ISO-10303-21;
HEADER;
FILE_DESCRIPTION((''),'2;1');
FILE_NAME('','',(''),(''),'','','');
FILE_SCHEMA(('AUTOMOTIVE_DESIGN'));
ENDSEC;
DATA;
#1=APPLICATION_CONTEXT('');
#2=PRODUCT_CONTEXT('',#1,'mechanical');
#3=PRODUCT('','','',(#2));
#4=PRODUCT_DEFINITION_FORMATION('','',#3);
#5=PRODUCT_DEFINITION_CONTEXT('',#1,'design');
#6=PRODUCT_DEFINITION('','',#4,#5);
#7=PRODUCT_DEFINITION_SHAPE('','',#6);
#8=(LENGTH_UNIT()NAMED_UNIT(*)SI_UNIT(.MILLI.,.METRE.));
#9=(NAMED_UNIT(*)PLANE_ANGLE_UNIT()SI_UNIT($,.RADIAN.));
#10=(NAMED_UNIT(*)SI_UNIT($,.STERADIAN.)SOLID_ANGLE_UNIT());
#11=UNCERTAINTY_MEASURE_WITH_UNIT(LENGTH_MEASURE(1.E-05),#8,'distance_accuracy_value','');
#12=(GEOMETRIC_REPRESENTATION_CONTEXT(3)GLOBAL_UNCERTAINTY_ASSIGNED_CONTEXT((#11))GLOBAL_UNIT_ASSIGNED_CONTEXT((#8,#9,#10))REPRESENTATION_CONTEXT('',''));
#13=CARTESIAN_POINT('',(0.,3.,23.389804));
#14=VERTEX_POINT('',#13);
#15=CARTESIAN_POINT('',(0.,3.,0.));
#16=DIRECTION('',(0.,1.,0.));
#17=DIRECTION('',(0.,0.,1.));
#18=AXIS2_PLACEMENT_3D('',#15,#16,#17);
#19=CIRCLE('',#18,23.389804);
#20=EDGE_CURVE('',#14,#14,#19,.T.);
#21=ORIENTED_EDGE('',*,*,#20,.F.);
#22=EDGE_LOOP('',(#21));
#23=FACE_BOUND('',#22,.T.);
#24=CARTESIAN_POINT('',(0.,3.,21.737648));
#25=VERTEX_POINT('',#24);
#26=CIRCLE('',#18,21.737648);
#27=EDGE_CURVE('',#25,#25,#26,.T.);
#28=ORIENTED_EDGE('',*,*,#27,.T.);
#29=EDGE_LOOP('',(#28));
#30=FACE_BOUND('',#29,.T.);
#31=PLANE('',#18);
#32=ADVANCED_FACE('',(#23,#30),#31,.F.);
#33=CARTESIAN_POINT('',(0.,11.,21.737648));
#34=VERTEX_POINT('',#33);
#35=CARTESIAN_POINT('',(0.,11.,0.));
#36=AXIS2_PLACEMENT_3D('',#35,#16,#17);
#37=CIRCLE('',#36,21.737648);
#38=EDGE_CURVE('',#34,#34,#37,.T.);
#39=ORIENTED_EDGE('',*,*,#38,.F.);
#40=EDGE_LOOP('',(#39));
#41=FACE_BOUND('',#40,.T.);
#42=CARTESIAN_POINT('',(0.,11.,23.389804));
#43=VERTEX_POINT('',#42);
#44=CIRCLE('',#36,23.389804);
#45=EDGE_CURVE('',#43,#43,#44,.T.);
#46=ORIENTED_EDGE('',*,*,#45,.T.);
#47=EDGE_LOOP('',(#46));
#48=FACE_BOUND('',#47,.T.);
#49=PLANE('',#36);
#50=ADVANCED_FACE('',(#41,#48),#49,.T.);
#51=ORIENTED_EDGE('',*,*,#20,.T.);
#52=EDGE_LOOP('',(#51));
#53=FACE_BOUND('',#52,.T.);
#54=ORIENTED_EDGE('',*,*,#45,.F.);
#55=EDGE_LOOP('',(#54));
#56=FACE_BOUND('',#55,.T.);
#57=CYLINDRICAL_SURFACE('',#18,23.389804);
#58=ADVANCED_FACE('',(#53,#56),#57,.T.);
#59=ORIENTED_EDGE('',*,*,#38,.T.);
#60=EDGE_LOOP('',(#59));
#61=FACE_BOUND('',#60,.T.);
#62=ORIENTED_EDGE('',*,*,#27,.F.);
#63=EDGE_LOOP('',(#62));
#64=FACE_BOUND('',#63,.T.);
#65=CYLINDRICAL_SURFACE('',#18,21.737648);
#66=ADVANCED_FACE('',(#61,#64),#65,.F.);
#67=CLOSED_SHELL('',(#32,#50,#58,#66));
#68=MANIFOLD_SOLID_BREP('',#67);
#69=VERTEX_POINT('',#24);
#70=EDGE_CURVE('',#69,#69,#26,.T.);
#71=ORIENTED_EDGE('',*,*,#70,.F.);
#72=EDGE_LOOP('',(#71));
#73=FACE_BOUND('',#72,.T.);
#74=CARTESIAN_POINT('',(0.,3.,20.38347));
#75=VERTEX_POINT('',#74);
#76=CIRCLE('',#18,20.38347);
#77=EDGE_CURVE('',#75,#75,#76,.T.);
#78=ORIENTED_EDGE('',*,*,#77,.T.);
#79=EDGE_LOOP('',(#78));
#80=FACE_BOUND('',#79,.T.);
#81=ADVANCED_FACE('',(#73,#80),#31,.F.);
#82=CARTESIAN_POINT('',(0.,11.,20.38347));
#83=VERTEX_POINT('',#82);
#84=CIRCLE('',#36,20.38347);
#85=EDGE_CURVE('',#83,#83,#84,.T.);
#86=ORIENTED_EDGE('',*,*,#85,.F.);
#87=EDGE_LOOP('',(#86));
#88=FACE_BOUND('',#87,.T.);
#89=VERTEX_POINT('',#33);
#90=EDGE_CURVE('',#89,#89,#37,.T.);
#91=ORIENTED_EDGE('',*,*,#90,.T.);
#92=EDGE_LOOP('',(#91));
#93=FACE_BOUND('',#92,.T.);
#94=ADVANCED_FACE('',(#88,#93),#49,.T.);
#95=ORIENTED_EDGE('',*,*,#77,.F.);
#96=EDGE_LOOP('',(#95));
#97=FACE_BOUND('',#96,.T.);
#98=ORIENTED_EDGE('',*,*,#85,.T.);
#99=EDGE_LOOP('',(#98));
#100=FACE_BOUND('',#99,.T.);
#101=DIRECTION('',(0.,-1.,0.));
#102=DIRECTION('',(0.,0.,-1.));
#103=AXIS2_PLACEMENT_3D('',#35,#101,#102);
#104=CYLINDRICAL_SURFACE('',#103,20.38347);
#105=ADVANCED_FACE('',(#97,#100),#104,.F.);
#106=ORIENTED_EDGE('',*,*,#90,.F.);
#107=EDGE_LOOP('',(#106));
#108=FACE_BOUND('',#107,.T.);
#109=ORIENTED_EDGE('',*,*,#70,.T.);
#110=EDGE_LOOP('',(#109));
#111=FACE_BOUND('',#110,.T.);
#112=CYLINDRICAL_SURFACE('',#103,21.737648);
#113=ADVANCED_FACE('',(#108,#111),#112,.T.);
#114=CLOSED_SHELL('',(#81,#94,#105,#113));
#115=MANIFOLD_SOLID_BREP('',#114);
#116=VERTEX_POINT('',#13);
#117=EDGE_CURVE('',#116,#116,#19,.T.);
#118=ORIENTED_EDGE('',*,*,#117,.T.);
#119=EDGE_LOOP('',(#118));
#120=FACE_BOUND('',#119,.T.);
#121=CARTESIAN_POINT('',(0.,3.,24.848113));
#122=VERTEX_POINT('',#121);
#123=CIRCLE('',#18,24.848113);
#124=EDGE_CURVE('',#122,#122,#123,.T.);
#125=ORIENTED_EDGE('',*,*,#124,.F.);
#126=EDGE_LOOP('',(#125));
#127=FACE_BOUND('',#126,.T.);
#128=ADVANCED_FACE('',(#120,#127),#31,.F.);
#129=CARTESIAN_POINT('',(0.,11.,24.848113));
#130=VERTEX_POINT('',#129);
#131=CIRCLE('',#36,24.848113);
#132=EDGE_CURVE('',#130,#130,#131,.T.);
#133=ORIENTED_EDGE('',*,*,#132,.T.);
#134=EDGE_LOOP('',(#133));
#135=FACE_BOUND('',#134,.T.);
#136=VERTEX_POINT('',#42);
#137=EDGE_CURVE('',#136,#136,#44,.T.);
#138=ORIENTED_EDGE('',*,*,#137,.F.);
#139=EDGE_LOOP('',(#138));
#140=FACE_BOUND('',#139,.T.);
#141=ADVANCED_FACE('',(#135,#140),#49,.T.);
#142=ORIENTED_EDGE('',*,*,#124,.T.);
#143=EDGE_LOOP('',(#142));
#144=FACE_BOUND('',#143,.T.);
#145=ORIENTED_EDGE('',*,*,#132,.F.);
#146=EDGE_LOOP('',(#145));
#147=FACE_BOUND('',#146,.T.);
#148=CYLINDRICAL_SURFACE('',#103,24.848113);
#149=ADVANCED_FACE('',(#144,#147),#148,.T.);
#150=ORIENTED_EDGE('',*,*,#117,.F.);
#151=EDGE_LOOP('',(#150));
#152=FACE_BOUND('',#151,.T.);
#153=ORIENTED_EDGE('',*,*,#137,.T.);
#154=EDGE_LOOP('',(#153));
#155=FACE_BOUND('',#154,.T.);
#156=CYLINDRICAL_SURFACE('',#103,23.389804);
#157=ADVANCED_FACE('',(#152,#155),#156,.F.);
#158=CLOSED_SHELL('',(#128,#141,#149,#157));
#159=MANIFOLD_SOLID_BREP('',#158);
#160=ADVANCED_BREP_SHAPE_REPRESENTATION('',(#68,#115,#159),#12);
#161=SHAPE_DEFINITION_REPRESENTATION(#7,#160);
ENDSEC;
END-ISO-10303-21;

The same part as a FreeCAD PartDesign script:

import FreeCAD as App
import Part
import Sketcher

V = App.Vector
Q = App.Units.Quantity

doc = App.newDocument("Part")
params = doc.addObject("Spreadsheet::Sheet", "Params")
for row, (alias, value) in enumerate([
    ("pad1_length", "8 mm"),
    ("pad2_length", "8 mm"),
    ("pad3_length", "8 mm"),
], start=1):
    params.set(f"A{row}", alias)
    params.set(f"B{row}", "=" + value)
    params.setAlias(f"B{row}", alias)

body = doc.addObject("PartDesign::Body", "Body")

# Sketch on XZ plane
sketch1 = body.newObject("Sketcher::SketchObject", "Sketch")
sketch1.AttachmentSupport = (doc.getObject("XZ_Plane"), [""])
sketch1.MapMode = "FlatFace"
sketch1.AttachmentOffset = App.Placement(V(0, 0, -3), App.Rotation())
sketch1.addGeometry(Part.Circle(V(0, 0, 0), V(0, 0, 1), 21.737648), False)
sketch1.addGeometry(Part.Circle(V(0, 0, 0), V(0, 0, 1), 20.38347), False)
sketch1.addConstraint(Sketcher.Constraint("Coincident", 0, 3, -1, 1))
sketch1.addConstraint(Sketcher.Constraint("Coincident", 1, 3, -1, 1))
sketch1.addConstraint(Sketcher.Constraint("Diameter", 1, Q("40.76694 mm")))
sketch1.addConstraint(Sketcher.Constraint("Diameter", 0, Q("43.475295 mm")))
pad1 = body.newObject("PartDesign::Pad", "Pad")
pad1.Profile = sketch1
pad1.setExpression("Length", "Params.pad1_length")
pad1.Reversed = True
body2 = doc.addObject("PartDesign::Body", "Body001")

# Sketch on XZ plane
sketch2 = body2.newObject("Sketcher::SketchObject", "Sketch001")
sketch2.AttachmentSupport = (doc.getObject("XZ_Plane001"), [""])
sketch2.MapMode = "FlatFace"
sketch2.AttachmentOffset = App.Placement(V(0, 0, -3), App.Rotation())
sketch2.addGeometry(Part.Circle(V(0, 0, 0), V(0, 0, 1), 24.848113), False)
sketch2.addGeometry(Part.Circle(V(0, 0, 0), V(0, 0, 1), 23.389804), False)
sketch2.addConstraint(Sketcher.Constraint("Coincident", 0, 3, -1, 1))
sketch2.addConstraint(Sketcher.Constraint("Coincident", 1, 3, -1, 1))
sketch2.addConstraint(Sketcher.Constraint("Diameter", 1, Q("46.779608 mm")))
sketch2.addConstraint(Sketcher.Constraint("Diameter", 0, Q("49.696227 mm")))
pad2 = body2.newObject("PartDesign::Pad", "Pad001")
pad2.Profile = sketch2
pad2.setExpression("Length", "Params.pad2_length")
pad2.Reversed = True
body3 = doc.addObject("PartDesign::Body", "Body002")

# Sketch on XZ plane
sketch3 = body3.newObject("Sketcher::SketchObject", "Sketch002")
sketch3.AttachmentSupport = (doc.getObject("XZ_Plane002"), [""])
sketch3.MapMode = "FlatFace"
sketch3.AttachmentOffset = App.Placement(V(0, 0, -11), App.Rotation())
sketch3.addGeometry(Part.Circle(V(0, 0, 0), V(0, 0, 1), 23.389804), False)
sketch3.addGeometry(Part.Circle(V(0, 0, 0), V(0, 0, 1), 21.737648), False)
sketch3.addConstraint(Sketcher.Constraint("Coincident", 0, 3, -1, 1))
sketch3.addConstraint(Sketcher.Constraint("Coincident", 1, 3, -1, 1))
sketch3.addConstraint(Sketcher.Constraint("Diameter", 0, Q("46.779608 mm")))
sketch3.addConstraint(Sketcher.Constraint("Diameter", 1, Q("43.475295 mm")))
pad3 = body3.newObject("PartDesign::Pad", "Pad002")
pad3.Profile = sketch3
pad3.setExpression("Length", "Params.pad3_length")

doc.recompute()
